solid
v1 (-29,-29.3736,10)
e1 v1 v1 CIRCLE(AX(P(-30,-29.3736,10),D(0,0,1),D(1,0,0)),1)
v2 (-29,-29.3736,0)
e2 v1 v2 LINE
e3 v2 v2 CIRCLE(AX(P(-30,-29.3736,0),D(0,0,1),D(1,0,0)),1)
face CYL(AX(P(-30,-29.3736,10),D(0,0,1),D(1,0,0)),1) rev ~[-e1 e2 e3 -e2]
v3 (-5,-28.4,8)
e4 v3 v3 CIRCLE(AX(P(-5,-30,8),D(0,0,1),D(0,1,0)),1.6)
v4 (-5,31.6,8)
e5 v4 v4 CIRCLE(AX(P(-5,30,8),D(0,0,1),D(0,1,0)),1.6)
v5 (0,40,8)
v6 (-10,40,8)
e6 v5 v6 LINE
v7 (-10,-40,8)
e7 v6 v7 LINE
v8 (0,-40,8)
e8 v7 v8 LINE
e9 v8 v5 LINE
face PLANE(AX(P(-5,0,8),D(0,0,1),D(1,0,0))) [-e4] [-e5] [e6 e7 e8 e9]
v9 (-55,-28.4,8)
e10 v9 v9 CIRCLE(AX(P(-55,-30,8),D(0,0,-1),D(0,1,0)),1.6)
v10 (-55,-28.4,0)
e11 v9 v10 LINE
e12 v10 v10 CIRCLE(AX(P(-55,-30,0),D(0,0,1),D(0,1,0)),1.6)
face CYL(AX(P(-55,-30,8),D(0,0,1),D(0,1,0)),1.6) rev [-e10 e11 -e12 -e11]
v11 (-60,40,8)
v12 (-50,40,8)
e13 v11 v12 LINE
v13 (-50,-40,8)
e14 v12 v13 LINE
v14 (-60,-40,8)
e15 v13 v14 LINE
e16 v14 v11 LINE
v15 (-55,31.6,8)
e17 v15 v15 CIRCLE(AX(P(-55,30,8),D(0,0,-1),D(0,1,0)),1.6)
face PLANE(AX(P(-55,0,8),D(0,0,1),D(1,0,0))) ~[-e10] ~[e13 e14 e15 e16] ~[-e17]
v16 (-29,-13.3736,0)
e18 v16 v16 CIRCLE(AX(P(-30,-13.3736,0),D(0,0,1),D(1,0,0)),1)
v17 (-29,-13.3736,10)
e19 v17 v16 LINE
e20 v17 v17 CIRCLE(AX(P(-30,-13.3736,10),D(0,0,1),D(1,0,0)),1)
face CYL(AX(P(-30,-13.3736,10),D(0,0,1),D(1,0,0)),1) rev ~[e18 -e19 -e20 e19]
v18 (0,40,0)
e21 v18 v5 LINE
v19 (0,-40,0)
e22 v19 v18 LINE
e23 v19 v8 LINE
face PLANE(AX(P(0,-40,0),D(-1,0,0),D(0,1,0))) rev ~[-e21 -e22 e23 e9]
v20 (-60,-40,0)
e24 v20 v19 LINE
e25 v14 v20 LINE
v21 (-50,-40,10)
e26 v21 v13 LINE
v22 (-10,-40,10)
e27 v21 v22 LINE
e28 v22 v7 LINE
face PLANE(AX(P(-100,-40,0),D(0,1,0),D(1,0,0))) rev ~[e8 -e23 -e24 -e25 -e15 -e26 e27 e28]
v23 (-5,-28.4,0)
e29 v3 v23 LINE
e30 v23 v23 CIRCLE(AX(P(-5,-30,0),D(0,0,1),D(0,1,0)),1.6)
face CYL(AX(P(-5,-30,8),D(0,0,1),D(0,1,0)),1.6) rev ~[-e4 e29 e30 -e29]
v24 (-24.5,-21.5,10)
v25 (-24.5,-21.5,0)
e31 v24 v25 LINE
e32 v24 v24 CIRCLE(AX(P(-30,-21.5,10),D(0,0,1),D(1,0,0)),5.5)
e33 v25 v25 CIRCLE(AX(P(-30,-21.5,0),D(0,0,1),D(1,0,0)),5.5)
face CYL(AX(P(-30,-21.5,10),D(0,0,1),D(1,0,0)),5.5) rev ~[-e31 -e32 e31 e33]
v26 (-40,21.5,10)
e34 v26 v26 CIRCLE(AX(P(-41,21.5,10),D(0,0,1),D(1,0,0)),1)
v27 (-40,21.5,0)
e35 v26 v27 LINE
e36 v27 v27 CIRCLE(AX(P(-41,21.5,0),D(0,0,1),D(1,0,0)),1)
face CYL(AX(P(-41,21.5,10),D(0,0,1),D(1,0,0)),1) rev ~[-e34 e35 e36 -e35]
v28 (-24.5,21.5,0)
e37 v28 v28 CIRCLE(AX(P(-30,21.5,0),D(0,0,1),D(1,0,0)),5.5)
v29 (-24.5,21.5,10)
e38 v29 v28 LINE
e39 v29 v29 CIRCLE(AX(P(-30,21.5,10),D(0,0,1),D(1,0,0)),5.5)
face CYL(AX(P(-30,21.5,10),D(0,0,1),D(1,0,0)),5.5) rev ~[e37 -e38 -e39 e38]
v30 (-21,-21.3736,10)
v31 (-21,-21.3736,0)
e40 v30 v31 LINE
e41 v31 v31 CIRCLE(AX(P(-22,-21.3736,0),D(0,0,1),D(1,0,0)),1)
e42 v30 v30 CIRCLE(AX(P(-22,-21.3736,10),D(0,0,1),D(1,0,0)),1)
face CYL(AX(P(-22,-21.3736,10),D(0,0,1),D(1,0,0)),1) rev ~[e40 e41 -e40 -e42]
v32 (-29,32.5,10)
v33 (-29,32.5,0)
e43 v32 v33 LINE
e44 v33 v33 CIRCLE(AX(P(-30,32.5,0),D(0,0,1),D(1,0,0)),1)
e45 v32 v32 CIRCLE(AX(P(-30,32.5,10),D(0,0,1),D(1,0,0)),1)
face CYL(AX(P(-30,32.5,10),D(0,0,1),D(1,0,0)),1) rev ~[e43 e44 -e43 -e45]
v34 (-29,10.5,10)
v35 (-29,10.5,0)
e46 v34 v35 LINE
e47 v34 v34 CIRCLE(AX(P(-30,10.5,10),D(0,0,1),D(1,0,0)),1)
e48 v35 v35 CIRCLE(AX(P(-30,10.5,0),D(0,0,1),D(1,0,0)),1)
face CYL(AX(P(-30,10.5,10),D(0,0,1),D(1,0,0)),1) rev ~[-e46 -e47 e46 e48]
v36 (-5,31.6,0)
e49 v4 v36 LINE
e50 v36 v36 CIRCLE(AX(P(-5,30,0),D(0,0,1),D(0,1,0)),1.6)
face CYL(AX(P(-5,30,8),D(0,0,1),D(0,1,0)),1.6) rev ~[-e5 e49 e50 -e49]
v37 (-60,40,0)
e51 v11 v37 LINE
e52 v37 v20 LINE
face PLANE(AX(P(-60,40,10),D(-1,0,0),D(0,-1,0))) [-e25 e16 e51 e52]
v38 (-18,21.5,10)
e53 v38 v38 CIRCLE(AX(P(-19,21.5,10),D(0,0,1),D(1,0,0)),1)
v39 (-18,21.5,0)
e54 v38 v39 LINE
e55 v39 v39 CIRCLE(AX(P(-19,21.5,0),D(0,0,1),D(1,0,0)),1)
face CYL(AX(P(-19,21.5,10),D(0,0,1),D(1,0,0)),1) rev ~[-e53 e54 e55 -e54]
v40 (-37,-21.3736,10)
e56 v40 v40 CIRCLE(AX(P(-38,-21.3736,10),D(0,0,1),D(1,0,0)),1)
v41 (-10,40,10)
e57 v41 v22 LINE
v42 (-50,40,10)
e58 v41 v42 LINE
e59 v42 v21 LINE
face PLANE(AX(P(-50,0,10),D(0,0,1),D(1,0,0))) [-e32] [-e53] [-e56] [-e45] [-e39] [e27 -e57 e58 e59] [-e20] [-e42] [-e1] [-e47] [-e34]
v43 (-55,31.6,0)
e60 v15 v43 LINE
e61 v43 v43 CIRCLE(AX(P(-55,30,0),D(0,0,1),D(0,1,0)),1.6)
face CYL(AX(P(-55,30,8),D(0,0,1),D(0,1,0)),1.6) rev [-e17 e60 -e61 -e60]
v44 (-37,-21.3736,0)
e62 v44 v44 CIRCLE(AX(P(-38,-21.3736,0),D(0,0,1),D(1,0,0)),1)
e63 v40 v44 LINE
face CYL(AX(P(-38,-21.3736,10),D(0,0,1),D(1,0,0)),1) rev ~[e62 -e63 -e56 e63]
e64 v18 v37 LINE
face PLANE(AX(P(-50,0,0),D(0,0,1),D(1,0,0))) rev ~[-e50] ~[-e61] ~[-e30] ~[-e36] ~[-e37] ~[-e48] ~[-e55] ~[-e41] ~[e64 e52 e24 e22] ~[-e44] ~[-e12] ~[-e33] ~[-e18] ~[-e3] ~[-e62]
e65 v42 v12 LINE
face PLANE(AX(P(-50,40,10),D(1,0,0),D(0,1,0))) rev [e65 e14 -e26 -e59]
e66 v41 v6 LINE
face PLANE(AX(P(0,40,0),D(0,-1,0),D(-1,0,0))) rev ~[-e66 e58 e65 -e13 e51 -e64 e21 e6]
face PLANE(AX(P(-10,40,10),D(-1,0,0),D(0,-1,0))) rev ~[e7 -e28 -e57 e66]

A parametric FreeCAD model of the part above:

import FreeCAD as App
import Part
import Sketcher
from FreeCAD import Vector
Q = App.Units.Quantity


def add_polygon(sketch, points):
    """Adds a closed chain of lines whose ends are joined by coincident constraints."""
    first, n = sketch.GeometryCount, len(points)
    for a, b in zip(points, points[1:] + points[:1]):
        sketch.addGeometry(Part.LineSegment(App.Vector(*a, 0), App.Vector(*b, 0)), False)
    for i in range(n):
        sketch.addConstraint(Sketcher.Constraint("Coincident", first + i, 2, first + (i + 1) % n, 1))

doc = App.newDocument("Part")
params = doc.addObject("Spreadsheet::Sheet", "Params")
for row, (alias, value) in enumerate([
    ("sketch1_width", "100 mm"),
    ("sketch1_height", "80 mm"),
    ("pad1_length", "10 mm"),
    ("sketch2_diameter", "11 mm"),
    ("sketch3_diameter", "2 mm"),
    ("sketch4_diameter", "2 mm"),
    ("sketch5_width", "10 mm"),
    ("sketch5_height", "80 mm"),
    ("pocket4_length", "2 mm"),
    ("sketch6_diameter", "3.2 mm"),
    ("sketch7_width", "40 mm"),
    ("sketch7_height", "80 mm"),
], start=1):
    params.set(f"A{row}", alias)
    params.set(f"B{row}", "=" + value)
    params.setAlias(f"B{row}", alias)

body = doc.addObject("PartDesign::Body", "Body")

sketch1 = body.newObject("Sketcher::SketchObject", "Sketch")
sketch1.AttachmentSupport = (doc.getObject("XY_Plane"), [""])
sketch1.MapMode = "FlatFace"
add_polygon(sketch1, [(0, -40), (0, 40), (-100, 40), (-100, -40)])
sketch1.addConstraint([
    Sketcher.Constraint("Vertical", 0),
    Sketcher.Constraint("Horizontal", 1),
    Sketcher.Constraint("Vertical", 2),
    Sketcher.Constraint("Horizontal", 3),
    Sketcher.Constraint("Symmetric", 0, 2, 3, 2, -1, 1),
    Sketcher.Constraint("DistanceX", 1, 2, 1, 1, Q("100 mm")),
    Sketcher.Constraint("DistanceY", 0, 1, 0, 2, Q("80 mm")),
])
sketch1.setExpression("Constraints[9]", "Params.sketch1_width")
sketch1.setExpression("Constraints[10]", "Params.sketch1_height")
pad1 = body.newObject("PartDesign::Pad", "Pad")
pad1.Profile = sketch1
pad1.setExpression("Length", "Params.pad1_length")

sketch2 = body.newObject("Sketcher::SketchObject", "Sketch001")
sketch2.AttachmentSupport = (doc.getObject("XY_Plane"), [""])
sketch2.MapMode = "FlatFace"
sketch2.AttachmentOffset = App.Placement(Vector(0, 0, 10), App.Rotation())
sketch2.addGeometry([
    Part.Circle(Vector(-30, 22, 0), Vector(0, 0, 1), 6),
    Part.Circle(Vector(-30, -22, 0), Vector(0, 0, 1), 6),
], False)
sketch2.addConstraint([
    Sketcher.Constraint("Equal", 0, 1),
    Sketcher.Constraint("Symmetric", 0, 3, 1, 3, -1),
    Sketcher.Constraint("Diameter", 0, Q("11 mm")),
    Sketcher.Constraint("DistanceX", 0, 3, -1, 1, Q("30 mm")),
    Sketcher.Constraint("DistanceY", 1, 3, 0, 3, Q("43 mm")),
])
sketch2.setExpression("Constraints[2]", "Params.sketch2_diameter")
pocket1 = body.newObject("PartDesign::Pocket", "Pocket")
pocket1.Profile = sketch2
pocket1.Type = "ThroughAll"

sketch3 = body.newObject("Sketcher::SketchObject", "Sketch002")
sketch3.AttachmentSupport = (doc.getObject("XY_Plane"), [""])
sketch3.MapMode = "FlatFace"
sketch3.AttachmentOffset = App.Placement(Vector(0, 0, 10), App.Rotation())
sketch3.addGeometry([
    Part.Circle(Vector(-30, 32.5, 0), Vector(0, 0, 1), 1),
    Part.Circle(Vector(-41, 21.5, 0), Vector(0, 0, 1), 1),
    Part.Circle(Vector(-30, 10.5, 0), Vector(0, 0, 1), 1),
    Part.Circle(Vector(-19, 21.5, 0), Vector(0, 0, 1), 1),
], False)
sketch3.addConstraint([
    Sketcher.Constraint("Equal", 0, 1),
    Sketcher.Constraint("Equal", 1, 2),
    Sketcher.Constraint("Equal", 2, 3),
    Sketcher.Constraint("Horizontal", 1, 3, 3, 3),
    Sketcher.Constraint("Vertical", 0, 3, 2, 3),
    Sketcher.Constraint("Diameter", 0, Q("2 mm")),
    Sketcher.Constraint("DistanceX", 0, 3, -1, 1, Q("30 mm")),
    Sketcher.Constraint("DistanceX", 1, 3, -1, 1, Q("41 mm")),
    Sketcher.Constraint("DistanceX", 3, 3, -1, 1, Q("19 mm")),
    Sketcher.Constraint("DistanceY", 1, 3, 0, 3, Q("11 mm")),
    Sketcher.Constraint("DistanceY", 2, 3, 1, 3, Q("11 mm")),
    Sketcher.Constraint("DistanceY", -1, 1, 0, 3, Q("32.5 mm")),
])
sketch3.setExpression("Constraints[5]", "Params.sketch3_diameter")
pocket2 = body.newObject("PartDesign::Pocket", "Pocket001")
pocket2.Profile = sketch3
pocket2.Type = "ThroughAll"

sketch4 = body.newObject("Sketcher::SketchObject", "Sketch003")
sketch4.AttachmentSupport = (doc.getObject("XY_Plane"), [""])
sketch4.MapMode = "FlatFace"
sketch4.AttachmentOffset = App.Placement(Vector(0, 0, 10), App.Rotation())
sketch4.addGeometry([
    Part.Circle(Vector(-38, -21.4, 0), Vector(0, 0, 1), 1),
    Part.Circle(Vector(-30, -13.4, 0), Vector(0, 0, 1), 1),
    Part.Circle(Vector(-22, -21.4, 0), Vector(0, 0, 1), 1),
    Part.Circle(Vector(-30, -29.4, 0), Vector(0, 0, 1), 1),
], False)
sketch4.addConstraint([
    Sketcher.Constraint("Equal", 0, 1),
    Sketcher.Constraint("Equal", 1, 2),
    Sketcher.Constraint("Equal", 2, 3),
    Sketcher.Constraint("Horizontal", 0, 3, 2, 3),
    Sketcher.Constraint("Vertical", 1, 3, 3, 3),
    Sketcher.Constraint("Diameter", 0, Q("2 mm")),
    Sketcher.Constraint("DistanceX", 0, 3, -1, 1, Q("38 mm")),
    Sketcher.Constraint("DistanceX", 1, 3, -1, 1, Q("30 mm")),
    Sketcher.Constraint("DistanceX", 2, 3, -1, 1, Q("22 mm")),
    Sketcher.Constraint("DistanceY", 0, 3, 1, 3, Q("8 mm")),
    Sketcher.Constraint("DistanceY", 3, 3, 0, 3, Q("8 mm")),
    Sketcher.Constraint("DistanceY", 0, 3, -1, 1, Q("21.3736 mm")),
])
sketch4.setExpression("Constraints[5]", "Params.sketch4_diameter")
pocket3 = body.newObject("PartDesign::Pocket", "Pocket002")
pocket3.Profile = sketch4
pocket3.Type = "ThroughAll"

sketch5 = body.newObject("Sketcher::SketchObject", "Sketch004")
sketch5.AttachmentSupport = (doc.getObject("XY_Plane"), [""])
sketch5.MapMode = "FlatFace"
sketch5.AttachmentOffset = App.Placement(Vector(0, 0, 10), App.Rotation())
add_polygon(sketch5, [(0, -40), (0, 40), (-10, 40), (-10, -40)])
sketch5.addConstraint([
    Sketcher.Constraint("Vertical", 0),
    Sketcher.Constraint("Horizontal", 1),
    Sketcher.Constraint("Vertical", 2),
    Sketcher.Constraint("Horizontal", 3),
    Sketcher.Constraint("Symmetric", 0, 2, 3, 2, -1, 1),
    Sketcher.Constraint("DistanceX", 1, 2, 1, 1, Q("10 mm")),
    Sketcher.Constraint("DistanceY", 0, 1, 0, 2, Q("80 mm")),
])
sketch5.setExpression("Constraints[9]", "Params.sketch5_width")
sketch5.setExpression("Constraints[10]", "Params.sketch5_height")
pocket4 = body.newObject("PartDesign::Pocket", "Pocket003")
pocket4.Profile = sketch5
pocket4.setExpression("Length", "Params.pocket4_length")

sketch6 = body.newObject("Sketcher::SketchObject", "Sketch005")
sketch6.AttachmentSupport = (doc.getObject("XY_Plane"), [""])
sketch6.MapMode = "FlatFace"
sketch6.AttachmentOffset = App.Placement(Vector(0, 0, 8), App.Rotation())
sketch6.addGeometry([
    Part.Circle(Vector(-5, -30, 0), Vector(0, 0, 1), 1.6),
    Part.Circle(Vector(-5, 30, 0), Vector(0, 0, 1), 1.6),
], False)
sketch6.addConstraint([
    Sketcher.Constraint("Equal", 0, 1),
    Sketcher.Constraint("Symmetric", 0, 3, 1, 3, -1),
    Sketcher.Constraint("DistanceY", 0, 3, -1, 1, Q("30 mm")),
    Sketcher.Constraint("Diameter", 0, Q("3.2 mm")),
    Sketcher.Constraint("DistanceX", 0, 3, -1, 1, Q("5 mm")),
])
sketch6.setExpression("Constraints[3]", "Params.sketch6_diameter")
pocket5 = body.newObject("PartDesign::Pocket", "Pocket004")
pocket5.Profile = sketch6
pocket5.Type = "ThroughAll"

sketch7 = body.newObject("Sketcher::SketchObject", "Sketch006")
sketch7.AttachmentSupport = (doc.getObject("XY_Plane"), [""])
sketch7.MapMode = "FlatFace"
sketch7.AttachmentOffset = App.Placement(Vector(0, 0, 10), App.Rotation())
add_polygon(sketch7, [(-100, 40), (-100, -40), (-60, -40), (-60, 40)])
sketch7.addConstraint([
    Sketcher.Constraint("Vertical", 0),
    Sketcher.Constraint("Horizontal", 1),
    Sketcher.Constraint("Vertical", 2),
    Sketcher.Constraint("Horizontal", 3),
    Sketcher.Constraint("DistanceX", 1, 1, 1, 2, Q("40 mm")),
    Sketcher.Constraint("DistanceY", 0, 2, 0, 1, Q("80 mm")),
    Sketcher.Constraint("DistanceX", 0, 2, -1, 1, Q("100 mm")),
    Sketcher.Constraint("DistanceY", 0, 2, -1, 1, Q("40 mm")),
])
sketch7.setExpression("Constraints[8]", "Params.sketch7_width")
sketch7.setExpression("Constraints[9]", "Params.sketch7_height")
pocket6 = body.newObject("PartDesign::Pocket", "Pocket005")
pocket6.Profile = sketch7
pocket6.Type = "ThroughAll"
doc.recompute()

datumplane = body.newObject("PartDesign::Plane", "DatumPlane")
datumplane.AttachmentSupport = (doc.getObject("YZ_Plane"), [""])
datumplane.MapMode = "FlatFace"
datumplane.AttachmentOffset = App.Placement(Vector(0, 0, -30), App.Rotation())
mirrored = body.newObject("PartDesign::Mirrored", "Mirrored")
mirrored.Originals = [pocket5, pocket4]
mirrored.MirrorPlane = (datumplane, [""])
body.Tip = mirrored

doc.recompute()
